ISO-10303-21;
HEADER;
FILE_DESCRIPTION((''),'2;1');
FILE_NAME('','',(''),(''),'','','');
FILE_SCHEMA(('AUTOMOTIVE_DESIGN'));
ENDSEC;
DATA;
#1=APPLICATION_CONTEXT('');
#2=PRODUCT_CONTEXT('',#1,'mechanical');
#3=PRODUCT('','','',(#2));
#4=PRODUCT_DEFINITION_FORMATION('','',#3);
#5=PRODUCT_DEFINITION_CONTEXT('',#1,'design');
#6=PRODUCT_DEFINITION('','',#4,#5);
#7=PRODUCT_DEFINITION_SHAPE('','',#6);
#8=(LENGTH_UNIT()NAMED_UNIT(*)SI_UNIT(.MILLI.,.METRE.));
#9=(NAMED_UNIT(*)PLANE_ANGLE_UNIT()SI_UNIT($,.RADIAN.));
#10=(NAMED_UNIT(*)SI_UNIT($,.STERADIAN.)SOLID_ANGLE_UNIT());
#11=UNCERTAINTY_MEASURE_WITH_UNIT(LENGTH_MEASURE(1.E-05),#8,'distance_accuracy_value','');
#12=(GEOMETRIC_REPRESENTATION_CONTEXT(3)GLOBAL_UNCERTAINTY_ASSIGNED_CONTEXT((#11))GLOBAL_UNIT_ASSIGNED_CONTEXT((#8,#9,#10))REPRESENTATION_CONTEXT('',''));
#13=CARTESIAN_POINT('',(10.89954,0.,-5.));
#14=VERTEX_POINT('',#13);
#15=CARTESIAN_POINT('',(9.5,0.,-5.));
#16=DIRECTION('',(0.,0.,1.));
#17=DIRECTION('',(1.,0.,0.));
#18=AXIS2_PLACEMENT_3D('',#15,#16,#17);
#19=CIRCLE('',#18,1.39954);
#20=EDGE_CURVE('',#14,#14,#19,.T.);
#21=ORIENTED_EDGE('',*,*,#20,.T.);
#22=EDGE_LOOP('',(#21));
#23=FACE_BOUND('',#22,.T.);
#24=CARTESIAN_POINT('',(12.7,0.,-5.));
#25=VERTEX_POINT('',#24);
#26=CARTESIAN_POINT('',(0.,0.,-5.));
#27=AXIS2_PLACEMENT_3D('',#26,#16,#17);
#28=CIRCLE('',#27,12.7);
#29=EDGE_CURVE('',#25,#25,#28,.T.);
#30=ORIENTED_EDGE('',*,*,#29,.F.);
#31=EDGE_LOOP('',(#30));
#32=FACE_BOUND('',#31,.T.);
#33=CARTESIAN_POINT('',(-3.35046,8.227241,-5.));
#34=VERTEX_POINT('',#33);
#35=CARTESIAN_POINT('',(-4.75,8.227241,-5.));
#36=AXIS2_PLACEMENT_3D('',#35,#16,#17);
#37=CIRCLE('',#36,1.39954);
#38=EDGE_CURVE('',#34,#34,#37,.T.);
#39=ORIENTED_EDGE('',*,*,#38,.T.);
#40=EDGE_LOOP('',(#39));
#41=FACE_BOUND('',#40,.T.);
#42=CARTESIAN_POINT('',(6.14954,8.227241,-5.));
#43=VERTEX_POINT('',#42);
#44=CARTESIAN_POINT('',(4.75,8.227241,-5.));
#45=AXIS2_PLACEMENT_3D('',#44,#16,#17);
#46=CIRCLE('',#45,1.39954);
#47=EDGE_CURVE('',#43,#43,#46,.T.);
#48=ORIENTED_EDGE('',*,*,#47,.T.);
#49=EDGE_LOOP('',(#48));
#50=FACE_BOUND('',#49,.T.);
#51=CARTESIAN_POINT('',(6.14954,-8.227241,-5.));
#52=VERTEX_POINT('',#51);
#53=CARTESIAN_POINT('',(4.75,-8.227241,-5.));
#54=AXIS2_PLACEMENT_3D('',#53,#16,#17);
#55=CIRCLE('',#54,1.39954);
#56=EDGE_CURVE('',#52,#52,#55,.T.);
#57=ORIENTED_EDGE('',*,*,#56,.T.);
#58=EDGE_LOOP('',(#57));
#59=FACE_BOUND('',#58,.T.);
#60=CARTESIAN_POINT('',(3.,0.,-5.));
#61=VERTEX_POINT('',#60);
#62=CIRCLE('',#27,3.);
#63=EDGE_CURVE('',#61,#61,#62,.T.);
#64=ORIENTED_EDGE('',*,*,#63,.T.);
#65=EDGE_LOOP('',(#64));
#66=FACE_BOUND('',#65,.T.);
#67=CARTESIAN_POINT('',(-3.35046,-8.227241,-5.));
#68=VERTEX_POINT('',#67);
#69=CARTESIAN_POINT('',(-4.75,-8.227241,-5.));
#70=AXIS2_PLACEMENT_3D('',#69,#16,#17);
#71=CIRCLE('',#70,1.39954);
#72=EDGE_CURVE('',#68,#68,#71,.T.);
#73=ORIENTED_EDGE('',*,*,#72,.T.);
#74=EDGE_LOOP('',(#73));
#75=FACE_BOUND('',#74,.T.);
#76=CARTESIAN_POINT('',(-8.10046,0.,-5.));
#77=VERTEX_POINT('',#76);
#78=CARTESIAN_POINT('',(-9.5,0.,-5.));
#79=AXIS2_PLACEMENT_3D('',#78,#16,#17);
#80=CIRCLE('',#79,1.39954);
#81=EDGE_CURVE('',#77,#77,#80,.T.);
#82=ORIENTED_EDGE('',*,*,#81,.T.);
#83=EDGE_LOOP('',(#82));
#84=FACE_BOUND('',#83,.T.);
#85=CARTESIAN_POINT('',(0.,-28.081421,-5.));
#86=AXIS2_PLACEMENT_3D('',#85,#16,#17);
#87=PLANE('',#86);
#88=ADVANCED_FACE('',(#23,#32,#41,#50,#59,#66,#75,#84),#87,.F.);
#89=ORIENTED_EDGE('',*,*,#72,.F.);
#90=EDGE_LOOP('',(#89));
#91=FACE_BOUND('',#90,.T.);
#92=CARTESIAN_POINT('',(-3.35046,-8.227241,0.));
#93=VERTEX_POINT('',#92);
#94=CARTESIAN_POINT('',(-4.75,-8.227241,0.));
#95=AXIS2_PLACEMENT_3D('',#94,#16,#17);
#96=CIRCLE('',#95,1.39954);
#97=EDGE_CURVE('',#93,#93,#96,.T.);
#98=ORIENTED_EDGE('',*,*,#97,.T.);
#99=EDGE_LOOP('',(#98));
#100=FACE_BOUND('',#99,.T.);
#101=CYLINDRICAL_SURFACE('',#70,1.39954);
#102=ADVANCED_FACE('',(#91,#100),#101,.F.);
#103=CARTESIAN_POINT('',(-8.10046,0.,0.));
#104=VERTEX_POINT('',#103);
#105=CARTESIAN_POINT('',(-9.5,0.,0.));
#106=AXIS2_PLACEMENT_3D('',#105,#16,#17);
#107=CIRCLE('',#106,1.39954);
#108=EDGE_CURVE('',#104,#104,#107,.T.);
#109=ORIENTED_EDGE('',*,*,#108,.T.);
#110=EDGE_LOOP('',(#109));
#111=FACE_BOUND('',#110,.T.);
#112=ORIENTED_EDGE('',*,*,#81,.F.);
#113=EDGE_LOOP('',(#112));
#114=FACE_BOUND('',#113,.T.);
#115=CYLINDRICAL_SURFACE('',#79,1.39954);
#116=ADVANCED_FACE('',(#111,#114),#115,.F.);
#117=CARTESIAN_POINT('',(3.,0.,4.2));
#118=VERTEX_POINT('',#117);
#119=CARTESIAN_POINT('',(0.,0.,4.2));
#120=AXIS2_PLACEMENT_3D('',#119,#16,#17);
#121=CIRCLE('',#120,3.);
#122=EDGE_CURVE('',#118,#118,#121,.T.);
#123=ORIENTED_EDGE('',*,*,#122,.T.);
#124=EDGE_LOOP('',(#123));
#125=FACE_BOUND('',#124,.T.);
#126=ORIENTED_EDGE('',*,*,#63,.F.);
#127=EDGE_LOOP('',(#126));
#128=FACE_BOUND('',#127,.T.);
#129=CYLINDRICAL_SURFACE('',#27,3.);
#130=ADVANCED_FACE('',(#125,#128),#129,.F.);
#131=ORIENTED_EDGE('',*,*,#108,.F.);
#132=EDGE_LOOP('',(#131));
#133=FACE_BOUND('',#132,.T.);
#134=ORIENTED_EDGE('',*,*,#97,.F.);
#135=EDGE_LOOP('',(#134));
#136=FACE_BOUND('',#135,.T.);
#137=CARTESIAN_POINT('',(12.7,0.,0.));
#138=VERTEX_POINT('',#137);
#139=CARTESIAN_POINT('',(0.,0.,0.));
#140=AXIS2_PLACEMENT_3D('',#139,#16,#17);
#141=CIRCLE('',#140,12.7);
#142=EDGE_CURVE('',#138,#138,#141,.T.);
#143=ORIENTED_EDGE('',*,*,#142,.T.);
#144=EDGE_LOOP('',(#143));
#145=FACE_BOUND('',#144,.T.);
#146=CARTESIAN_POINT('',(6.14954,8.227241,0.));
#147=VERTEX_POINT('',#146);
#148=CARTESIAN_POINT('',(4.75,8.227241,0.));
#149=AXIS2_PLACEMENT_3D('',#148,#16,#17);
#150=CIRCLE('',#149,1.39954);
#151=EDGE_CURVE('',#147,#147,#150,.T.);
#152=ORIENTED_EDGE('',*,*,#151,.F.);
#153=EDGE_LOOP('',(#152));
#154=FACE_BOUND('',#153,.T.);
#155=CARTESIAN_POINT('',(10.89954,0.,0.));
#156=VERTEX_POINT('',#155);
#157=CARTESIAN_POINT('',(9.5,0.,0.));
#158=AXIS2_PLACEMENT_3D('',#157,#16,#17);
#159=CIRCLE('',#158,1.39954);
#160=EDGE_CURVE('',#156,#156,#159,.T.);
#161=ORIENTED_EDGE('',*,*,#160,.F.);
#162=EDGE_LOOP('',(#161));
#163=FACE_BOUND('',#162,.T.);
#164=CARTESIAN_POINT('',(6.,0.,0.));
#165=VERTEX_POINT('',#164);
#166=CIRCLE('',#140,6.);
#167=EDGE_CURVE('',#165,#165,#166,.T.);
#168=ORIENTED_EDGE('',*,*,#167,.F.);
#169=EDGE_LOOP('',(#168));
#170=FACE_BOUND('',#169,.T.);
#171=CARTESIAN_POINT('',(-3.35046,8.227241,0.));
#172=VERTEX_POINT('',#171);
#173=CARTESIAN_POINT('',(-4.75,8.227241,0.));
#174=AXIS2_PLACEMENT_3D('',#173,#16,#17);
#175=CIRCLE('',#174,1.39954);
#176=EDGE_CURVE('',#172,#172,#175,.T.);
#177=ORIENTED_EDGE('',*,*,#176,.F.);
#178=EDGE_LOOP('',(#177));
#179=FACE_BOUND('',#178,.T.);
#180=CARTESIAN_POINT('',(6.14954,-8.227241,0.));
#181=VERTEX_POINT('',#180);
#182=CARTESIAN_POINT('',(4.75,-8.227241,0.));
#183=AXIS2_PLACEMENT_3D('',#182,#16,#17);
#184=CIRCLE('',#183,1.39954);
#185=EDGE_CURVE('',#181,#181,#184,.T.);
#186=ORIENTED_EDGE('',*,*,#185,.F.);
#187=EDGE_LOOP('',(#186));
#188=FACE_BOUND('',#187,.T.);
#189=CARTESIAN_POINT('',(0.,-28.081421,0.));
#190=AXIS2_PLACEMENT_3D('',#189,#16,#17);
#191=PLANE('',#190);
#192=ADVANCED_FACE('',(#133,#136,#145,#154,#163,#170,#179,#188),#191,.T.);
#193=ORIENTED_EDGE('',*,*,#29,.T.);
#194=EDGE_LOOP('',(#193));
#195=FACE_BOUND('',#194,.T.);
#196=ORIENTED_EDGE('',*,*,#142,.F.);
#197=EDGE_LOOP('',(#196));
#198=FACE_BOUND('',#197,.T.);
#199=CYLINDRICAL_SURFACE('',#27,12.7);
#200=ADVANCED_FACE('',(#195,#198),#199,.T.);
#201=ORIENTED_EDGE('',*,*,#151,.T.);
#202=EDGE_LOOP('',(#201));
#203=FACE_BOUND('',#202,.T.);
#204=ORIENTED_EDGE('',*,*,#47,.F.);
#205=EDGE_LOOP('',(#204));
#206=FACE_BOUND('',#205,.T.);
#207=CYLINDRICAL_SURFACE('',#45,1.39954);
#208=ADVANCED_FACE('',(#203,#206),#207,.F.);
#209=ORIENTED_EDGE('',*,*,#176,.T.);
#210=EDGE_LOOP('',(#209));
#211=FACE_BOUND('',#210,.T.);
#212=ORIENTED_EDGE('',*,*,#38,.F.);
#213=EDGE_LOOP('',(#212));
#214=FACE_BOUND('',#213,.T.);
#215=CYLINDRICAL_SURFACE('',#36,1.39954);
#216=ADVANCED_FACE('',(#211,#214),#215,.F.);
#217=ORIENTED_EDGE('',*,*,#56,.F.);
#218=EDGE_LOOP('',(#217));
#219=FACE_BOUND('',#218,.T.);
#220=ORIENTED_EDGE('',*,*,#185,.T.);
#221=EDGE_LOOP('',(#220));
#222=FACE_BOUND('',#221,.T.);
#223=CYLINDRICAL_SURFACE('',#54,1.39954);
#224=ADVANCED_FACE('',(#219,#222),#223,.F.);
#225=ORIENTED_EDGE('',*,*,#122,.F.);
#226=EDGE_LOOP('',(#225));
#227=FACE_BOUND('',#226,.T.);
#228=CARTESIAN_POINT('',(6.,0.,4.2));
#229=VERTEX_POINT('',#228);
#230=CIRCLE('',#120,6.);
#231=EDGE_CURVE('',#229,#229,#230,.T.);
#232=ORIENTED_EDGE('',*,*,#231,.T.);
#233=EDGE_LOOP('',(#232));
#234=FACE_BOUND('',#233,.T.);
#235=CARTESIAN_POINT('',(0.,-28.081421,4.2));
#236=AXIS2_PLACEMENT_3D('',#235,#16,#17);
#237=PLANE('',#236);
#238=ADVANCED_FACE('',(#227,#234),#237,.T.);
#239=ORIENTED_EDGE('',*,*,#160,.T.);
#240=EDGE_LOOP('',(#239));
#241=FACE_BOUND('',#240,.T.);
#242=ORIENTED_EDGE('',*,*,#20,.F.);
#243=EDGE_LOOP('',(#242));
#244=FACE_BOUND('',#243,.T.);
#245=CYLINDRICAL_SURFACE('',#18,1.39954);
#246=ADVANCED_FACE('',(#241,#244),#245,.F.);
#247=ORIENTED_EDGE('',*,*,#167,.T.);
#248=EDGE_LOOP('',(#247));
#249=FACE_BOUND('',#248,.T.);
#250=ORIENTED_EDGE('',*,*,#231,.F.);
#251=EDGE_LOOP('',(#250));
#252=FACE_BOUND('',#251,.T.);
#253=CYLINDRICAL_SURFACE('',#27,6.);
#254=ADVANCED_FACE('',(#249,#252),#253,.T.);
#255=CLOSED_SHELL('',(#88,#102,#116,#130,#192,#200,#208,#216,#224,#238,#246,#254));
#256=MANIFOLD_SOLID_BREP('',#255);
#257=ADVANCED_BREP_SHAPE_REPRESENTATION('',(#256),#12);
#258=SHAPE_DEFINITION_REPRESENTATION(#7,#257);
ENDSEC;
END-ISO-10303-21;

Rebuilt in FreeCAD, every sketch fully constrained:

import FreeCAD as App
import Part
import Sketcher

V = App.Vector
Q = App.Units.Quantity

doc = App.newDocument("Part")
body = doc.addObject("PartDesign::Body", "Body")

# Sketch on XY plane
sketch1 = body.newObject("Sketcher::SketchObject", "Sketch")
sketch1.AttachmentSupport = (doc.getObject("XY_Plane"), [""])
sketch1.MapMode = "FlatFace"
sketch1.addGeometry([
    Part.Circle(V(0, 0, 0), V(0, 0, 1), 12.7),  # 0
    Part.Circle(V(-4.8, -8.2, 0), V(0, 0, 1), 1.4),  # 1
    Part.Circle(V(4.8, -8.2, 0), V(0, 0, 1), 1.4),  # 2
    Part.Circle(V(-9.5, 0, 0), V(0, 0, 1), 1.4),  # 3
    Part.Circle(V(-4.8, 8.2, 0), V(0, 0, 1), 1.4),  # 4
    Part.Circle(V(0, 0, 0), V(0, 0, 1), 6),  # 5
    Part.Circle(V(9.5, 0, 0), V(0, 0, 1), 1.4),  # 6
    Part.Circle(V(4.8, 8.2, 0), V(0, 0, 1), 1.4),  # 7
], False)
sketch1.addConstraint([
    Sketcher.Constraint("Coincident", 0, 3, -1, 1),
    Sketcher.Constraint("Coincident", 5, 3, -1, 1),
    Sketcher.Constraint("Equal", 1, 2),
    Sketcher.Constraint("Equal", 2, 3),
    Sketcher.Constraint("Equal", 3, 4),
    Sketcher.Constraint("Equal", 4, 6),
    Sketcher.Constraint("Equal", 6, 7),
    Sketcher.Constraint("Symmetric", 2, 3, 4, 3, -1, 1),
    Sketcher.Constraint("Symmetric", 3, 3, 6, 3, -1, 1),
    Sketcher.Constraint("Symmetric", 1, 3, 7, 3, -1, 1),
    Sketcher.Constraint("Symmetric", 1, 3, 2, 3, -2),
    Sketcher.Constraint("PointOnObject", 3, 3, -1),
    Sketcher.Constraint("Diameter", 5, Q("12 mm")),
    Sketcher.Constraint("Diameter", 0, Q("25.4 mm")),
    Sketcher.Constraint("DistanceX", 3, 3, -1, 1, Q("9.5 mm")),
    Sketcher.Constraint("DistanceX", 1, 3, 2, 3, Q("9.5 mm")),
    Sketcher.Constraint("Diameter", 1, Q("2.79908 mm")),
    Sketcher.Constraint("DistanceY", 1, 3, -1, 1, Q("8.227241 mm")),
])
pad1 = body.newObject("PartDesign::Pad", "Pad")
pad1.Profile = sketch1
pad1.Length = 5
pad1.Reversed = True

# Sketch on XY plane
sketch2 = body.newObject("Sketcher::SketchObject", "Sketch001")
sketch2.AttachmentSupport = (doc.getObject("XY_Plane"), [""])
sketch2.MapMode = "FlatFace"
sketch2.addGeometry([
    Part.Circle(V(0, 0, 0), V(0, 0, 1), 6),
    Part.Circle(V(0, 0, 0), V(0, 0, 1), 3),
], False)
sketch2.addConstraint([
    Sketcher.Constraint("Coincident", 0, 3, -1, 1),
    Sketcher.Constraint("Coincident", 1, 3, -1, 1),
    Sketcher.Constraint("Diameter", 0, Q("12 mm")),
    Sketcher.Constraint("Diameter", 1, Q("6 mm")),
])
pad2 = body.newObject("PartDesign::Pad", "Pad001")
pad2.Profile = sketch2
pad2.Type = "TwoLengths"
pad2.Length = 4.2
pad2.Length2 = 5

doc.recompute()
